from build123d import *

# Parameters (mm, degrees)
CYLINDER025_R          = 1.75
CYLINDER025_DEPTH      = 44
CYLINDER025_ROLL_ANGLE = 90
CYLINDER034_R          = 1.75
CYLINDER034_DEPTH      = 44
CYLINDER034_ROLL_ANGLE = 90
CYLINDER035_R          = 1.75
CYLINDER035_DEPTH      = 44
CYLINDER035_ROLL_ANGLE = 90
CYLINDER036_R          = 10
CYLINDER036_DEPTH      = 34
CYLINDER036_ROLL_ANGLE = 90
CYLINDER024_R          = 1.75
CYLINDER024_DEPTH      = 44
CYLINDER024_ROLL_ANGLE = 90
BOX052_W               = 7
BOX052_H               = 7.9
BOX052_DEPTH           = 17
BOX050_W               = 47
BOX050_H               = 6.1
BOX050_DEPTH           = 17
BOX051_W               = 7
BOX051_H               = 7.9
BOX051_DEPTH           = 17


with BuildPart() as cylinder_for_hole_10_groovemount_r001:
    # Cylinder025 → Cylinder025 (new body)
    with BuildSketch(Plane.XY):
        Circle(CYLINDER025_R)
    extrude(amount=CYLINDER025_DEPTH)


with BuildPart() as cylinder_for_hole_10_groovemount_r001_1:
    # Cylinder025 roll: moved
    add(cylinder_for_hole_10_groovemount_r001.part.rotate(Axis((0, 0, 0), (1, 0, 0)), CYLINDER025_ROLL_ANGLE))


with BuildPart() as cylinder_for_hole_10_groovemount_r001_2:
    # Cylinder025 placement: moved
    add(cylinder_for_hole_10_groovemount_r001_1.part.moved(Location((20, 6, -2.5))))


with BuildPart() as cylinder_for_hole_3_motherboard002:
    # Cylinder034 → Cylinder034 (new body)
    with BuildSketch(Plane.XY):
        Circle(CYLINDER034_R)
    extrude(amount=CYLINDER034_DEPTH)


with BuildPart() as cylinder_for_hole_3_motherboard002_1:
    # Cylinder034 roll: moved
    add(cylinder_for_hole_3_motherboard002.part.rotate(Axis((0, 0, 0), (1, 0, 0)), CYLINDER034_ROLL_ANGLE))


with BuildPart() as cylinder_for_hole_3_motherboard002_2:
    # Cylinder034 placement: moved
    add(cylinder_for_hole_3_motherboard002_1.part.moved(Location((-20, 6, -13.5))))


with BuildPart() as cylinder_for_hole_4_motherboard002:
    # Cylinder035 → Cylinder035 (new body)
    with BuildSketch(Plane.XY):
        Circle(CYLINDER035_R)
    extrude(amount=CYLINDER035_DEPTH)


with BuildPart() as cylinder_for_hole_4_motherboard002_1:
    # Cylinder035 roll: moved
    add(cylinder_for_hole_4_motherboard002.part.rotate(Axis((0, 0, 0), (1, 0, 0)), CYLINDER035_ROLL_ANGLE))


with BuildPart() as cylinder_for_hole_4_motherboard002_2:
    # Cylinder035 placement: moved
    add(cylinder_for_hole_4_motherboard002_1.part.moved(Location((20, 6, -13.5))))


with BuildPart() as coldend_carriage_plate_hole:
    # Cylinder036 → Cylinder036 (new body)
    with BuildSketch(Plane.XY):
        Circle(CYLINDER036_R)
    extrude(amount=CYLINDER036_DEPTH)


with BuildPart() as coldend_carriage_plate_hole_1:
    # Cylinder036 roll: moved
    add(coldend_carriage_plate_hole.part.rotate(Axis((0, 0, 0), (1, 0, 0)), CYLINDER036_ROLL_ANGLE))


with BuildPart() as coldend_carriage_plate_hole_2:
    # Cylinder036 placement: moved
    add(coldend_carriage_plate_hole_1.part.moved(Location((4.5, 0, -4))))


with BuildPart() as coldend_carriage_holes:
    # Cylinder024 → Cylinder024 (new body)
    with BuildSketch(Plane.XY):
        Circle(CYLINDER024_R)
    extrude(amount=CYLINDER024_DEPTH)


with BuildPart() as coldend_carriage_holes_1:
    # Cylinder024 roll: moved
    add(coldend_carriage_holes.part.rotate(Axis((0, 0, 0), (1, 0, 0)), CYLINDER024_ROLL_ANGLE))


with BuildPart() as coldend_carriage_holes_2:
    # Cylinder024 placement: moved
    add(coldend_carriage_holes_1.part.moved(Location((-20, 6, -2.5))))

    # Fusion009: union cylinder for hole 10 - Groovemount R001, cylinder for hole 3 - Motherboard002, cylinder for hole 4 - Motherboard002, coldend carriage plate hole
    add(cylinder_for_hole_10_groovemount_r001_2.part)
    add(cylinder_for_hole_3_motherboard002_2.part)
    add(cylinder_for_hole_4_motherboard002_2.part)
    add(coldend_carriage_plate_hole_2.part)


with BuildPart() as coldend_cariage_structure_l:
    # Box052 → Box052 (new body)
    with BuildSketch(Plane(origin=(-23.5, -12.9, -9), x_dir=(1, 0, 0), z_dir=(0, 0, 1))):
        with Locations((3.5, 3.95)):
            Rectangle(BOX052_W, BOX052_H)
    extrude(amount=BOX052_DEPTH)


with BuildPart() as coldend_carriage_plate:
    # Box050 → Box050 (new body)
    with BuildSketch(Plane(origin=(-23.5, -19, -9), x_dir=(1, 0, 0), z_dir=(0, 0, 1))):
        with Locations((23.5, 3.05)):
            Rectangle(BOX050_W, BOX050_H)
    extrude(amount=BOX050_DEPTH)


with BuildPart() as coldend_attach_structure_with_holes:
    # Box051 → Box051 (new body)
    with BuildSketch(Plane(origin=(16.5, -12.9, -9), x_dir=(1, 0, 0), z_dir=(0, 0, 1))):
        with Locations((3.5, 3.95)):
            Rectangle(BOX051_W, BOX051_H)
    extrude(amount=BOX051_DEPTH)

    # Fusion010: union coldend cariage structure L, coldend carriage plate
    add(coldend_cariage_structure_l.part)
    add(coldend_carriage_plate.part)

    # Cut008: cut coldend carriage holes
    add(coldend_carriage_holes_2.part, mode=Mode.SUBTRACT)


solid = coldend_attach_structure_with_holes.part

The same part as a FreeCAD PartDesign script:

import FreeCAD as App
import Part
import Sketcher
from FreeCAD import Vector
Q = App.Units.Quantity

doc = App.newDocument("Part")
params = doc.addObject("Spreadsheet::Sheet", "Params")
for row, (alias, value) in enumerate([
    ("sketch1_diameter", "3.5 mm"),
    ("pad1_length", "44 mm"),
    ("sketch2_diameter", "3.5 mm"),
    ("pad2_length", "44 mm"),
    ("sketch3_diameter", "3.5 mm"),
    ("pad3_length", "44 mm"),
    ("sketch4_diameter", "20 mm"),
    ("pad4_length", "34 mm"),
    ("sketch5_diameter", "3.5 mm"),
    ("pad5_length", "44 mm"),
    ("sketch6_width", "7 mm"),
    ("sketch6_height", "7.9 mm"),
    ("pad6_length", "17 mm"),
    ("sketch7_width", "47 mm"),
    ("sketch7_height", "6.1 mm"),
    ("pad7_length", "17 mm"),
    ("sketch8_width", "7 mm"),
    ("sketch8_height", "7.9 mm"),
    ("pad8_length", "17 mm"),
], start=1):
    params.set(f"A{row}", alias)
    params.set(f"B{row}", "=" + value)
    params.setAlias(f"B{row}", alias)

body = doc.addObject("PartDesign::Body", "Body")

# Sketch on XY plane
sketch1 = body.newObject("Sketcher::SketchObject", "Sketch")
sketch1.AttachmentSupport = (doc.getObject("XY_Plane"), [""])
sketch1.MapMode = "FlatFace"
sketch1.addGeometry(Part.Circle(Vector(0, 0, 0), Vector(0, 0, 1), 1.8), False)
sketch1.addConstraint(Sketcher.Constraint("Coincident", 0, 3, -1, 1))
sketch1.addConstraint(Sketcher.Constraint("Diameter", 0, Q("3.5 mm")))
sketch1.setExpression("Constraints[1]", "Params.sketch1_diameter")
pad1 = body.newObject("PartDesign::Pad", "Pad")
pad1.Profile = sketch1
pad1.setExpression("Length", "Params.pad1_length")
body2 = doc.addObject("PartDesign::Body", "Body001")
doc.recompute()

body.Placement = App.Placement(Vector(0, 0, 0), App.Rotation(Vector(1, 0, 0), 90))
boolean = body2.newObject("PartDesign::Boolean", "Boolean")
boolean.Type = "Fuse"
boolean.addObjects([body])
body3 = doc.addObject("PartDesign::Body", "Body002")
doc.recompute()

body2.Placement = App.Placement(Vector(20, 6, -2.5), App.Rotation(Vector(0, 0, 1), 0))
boolean2 = body3.newObject("PartDesign::Boolean", "Boolean001")
boolean2.Type = "Fuse"
boolean2.addObjects([body2])
body4 = doc.addObject("PartDesign::Body", "Body003")

# Sketch on XY plane
sketch2 = body4.newObject("Sketcher::SketchObject", "Sketch001")
sketch2.AttachmentSupport = (doc.getObject("XY_Plane003"), [""])
sketch2.MapMode = "FlatFace"
sketch2.addGeometry(Part.Circle(Vector(0, 0, 0), Vector(0, 0, 1), 1.8), False)
sketch2.addConstraint(Sketcher.Constraint("Coincident", 0, 3, -1, 1))
sketch2.addConstraint(Sketcher.Constraint("Diameter", 0, Q("3.5 mm")))
sketch2.setExpression("Constraints[1]", "Params.sketch2_diameter")
pad2 = body4.newObject("PartDesign::Pad", "Pad001")
pad2.Profile = sketch2
pad2.setExpression("Length", "Params.pad2_length")
body5 = doc.addObject("PartDesign::Body", "Body004")
doc.recompute()

body4.Placement = App.Placement(Vector(0, 0, 0), App.Rotation(Vector(1, 0, 0), 90))
boolean3 = body5.newObject("PartDesign::Boolean", "Boolean002")
boolean3.Type = "Fuse"
boolean3.addObjects([body4])
body6 = doc.addObject("PartDesign::Body", "Body005")
doc.recompute()

body5.Placement = App.Placement(Vector(-20, 6, -13.5), App.Rotation(Vector(0, 0, 1), 0))
boolean4 = body6.newObject("PartDesign::Boolean", "Boolean003")
boolean4.Type = "Fuse"
boolean4.addObjects([body5])
body7 = doc.addObject("PartDesign::Body", "Body006")

# Sketch on XY plane
sketch3 = body7.newObject("Sketcher::SketchObject", "Sketch002")
sketch3.AttachmentSupport = (doc.getObject("XY_Plane006"), [""])
sketch3.MapMode = "FlatFace"
sketch3.addGeometry(Part.Circle(Vector(0, 0, 0), Vector(0, 0, 1), 1.8), False)
sketch3.addConstraint(Sketcher.Constraint("Coincident", 0, 3, -1, 1))
sketch3.addConstraint(Sketcher.Constraint("Diameter", 0, Q("3.5 mm")))
sketch3.setExpression("Constraints[1]", "Params.sketch3_diameter")
pad3 = body7.newObject("PartDesign::Pad", "Pad002")
pad3.Profile = sketch3
pad3.setExpression("Length", "Params.pad3_length")
body8 = doc.addObject("PartDesign::Body", "Body007")
doc.recompute()

body7.Placement = App.Placement(Vector(0, 0, 0), App.Rotation(Vector(1, 0, 0), 90))
boolean5 = body8.newObject("PartDesign::Boolean", "Boolean004")
boolean5.Type = "Fuse"
boolean5.addObjects([body7])
body9 = doc.addObject("PartDesign::Body", "Body008")
doc.recompute()

body8.Placement = App.Placement(Vector(20, 6, -13.5), App.Rotation(Vector(0, 0, 1), 0))
boolean6 = body9.newObject("PartDesign::Boolean", "Boolean005")
boolean6.Type = "Fuse"
boolean6.addObjects([body8])
body10 = doc.addObject("PartDesign::Body", "Body009")

# Sketch on XY plane
sketch4 = body10.newObject("Sketcher::SketchObject", "Sketch003")
sketch4.AttachmentSupport = (doc.getObject("XY_Plane009"), [""])
sketch4.MapMode = "FlatFace"
sketch4.addGeometry(Part.Circle(Vector(0, 0, 0), Vector(0, 0, 1), 10), False)
sketch4.addConstraint(Sketcher.Constraint("Coincident", 0, 3, -1, 1))
sketch4.addConstraint(Sketcher.Constraint("Diameter", 0, Q("20 mm")))
sketch4.setExpression("Constraints[1]", "Params.sketch4_diameter")
pad4 = body10.newObject("PartDesign::Pad", "Pad003")
pad4.Profile = sketch4
pad4.setExpression("Length", "Params.pad4_length")
body11 = doc.addObject("PartDesign::Body", "Body010")
doc.recompute()

body10.Placement = App.Placement(Vector(0, 0, 0), App.Rotation(Vector(1, 0, 0), 90))
boolean7 = body11.newObject("PartDesign::Boolean", "Boolean006")
boolean7.Type = "Fuse"
boolean7.addObjects([body10])
body12 = doc.addObject("PartDesign::Body", "Body011")
doc.recompute()

body11.Placement = App.Placement(Vector(4.5, 0, -4), App.Rotation(Vector(0, 0, 1), 0))
boolean8 = body12.newObject("PartDesign::Boolean", "Boolean007")
boolean8.Type = "Fuse"
boolean8.addObjects([body11])
body13 = doc.addObject("PartDesign::Body", "Body012")

# Sketch on XY plane
sketch5 = body13.newObject("Sketcher::SketchObject", "Sketch004")
sketch5.AttachmentSupport = (doc.getObject("XY_Plane012"), [""])
sketch5.MapMode = "FlatFace"
sketch5.addGeometry(Part.Circle(Vector(0, 0, 0), Vector(0, 0, 1), 1.8), False)
sketch5.addConstraint(Sketcher.Constraint("Coincident", 0, 3, -1, 1))
sketch5.addConstraint(Sketcher.Constraint("Diameter", 0, Q("3.5 mm")))
sketch5.setExpression("Constraints[1]", "Params.sketch5_diameter")
pad5 = body13.newObject("PartDesign::Pad", "Pad004")
pad5.Profile = sketch5
pad5.setExpression("Length", "Params.pad5_length")
body14 = doc.addObject("PartDesign::Body", "Body013")
doc.recompute()

body13.Placement = App.Placement(Vector(0, 0, 0), App.Rotation(Vector(1, 0, 0), 90))
boolean9 = body14.newObject("PartDesign::Boolean", "Boolean008")
boolean9.Type = "Fuse"
boolean9.addObjects([body13])
body15 = doc.addObject("PartDesign::Body", "Body014")
body15.AllowCompound = True
doc.recompute()

body14.Placement = App.Placement(Vector(-20, 6, -2.5), App.Rotation(Vector(0, 0, 1), 0))
boolean10 = body15.newObject("PartDesign::Boolean", "Boolean009")
boolean10.Type = "Fuse"
boolean10.addObjects([body14])
doc.recompute()

boolean11 = body15.newObject("PartDesign::Boolean", "Boolean010")
boolean11.Type = "Fuse"
boolean11.addObjects([body3])
doc.recompute()

boolean12 = body15.newObject("PartDesign::Boolean", "Boolean011")
boolean12.Type = "Fuse"
boolean12.addObjects([body6])
doc.recompute()

boolean13 = body15.newObject("PartDesign::Boolean", "Boolean012")
boolean13.Type = "Fuse"
boolean13.addObjects([body9])
doc.recompute()

boolean14 = body15.newObject("PartDesign::Boolean", "Boolean013")
boolean14.Type = "Fuse"
boolean14.addObjects([body12])
body16 = doc.addObject("PartDesign::Body", "Body015")

# Sketch on XY plane
sketch6 = body16.newObject("Sketcher::SketchObject", "Sketch005")
sketch6.AttachmentSupport = (doc.getObject("XY_Plane015"), [""])
sketch6.MapMode = "FlatFace"
sketch6.AttachmentOffset = App.Placement(Vector(0, 0, -9), App.Rotation())
sketch6.addGeometry(Part.LineSegment(Vector(-24, -5, 0), Vector(-24, -13, 0)), False)
sketch6.addGeometry(Part.LineSegment(Vector(-24, -13, 0), Vector(-16, -13, 0)), False)
sketch6.addGeometry(Part.LineSegment(Vector(-16, -13, 0), Vector(-16, -5, 0)), False)
sketch6.addGeometry(Part.LineSegment(Vector(-16, -5, 0), Vector(-24, -5, 0)), False)
sketch6.addConstraint(Sketcher.Constraint("Coincident", 0, 2, 1, 1))
sketch6.addConstraint(Sketcher.Constraint("Coincident", 1, 2, 2, 1))
sketch6.addConstraint(Sketcher.Constraint("Coincident", 2, 2, 3, 1))
sketch6.addConstraint(Sketcher.Constraint("Coincident", 3, 2, 0, 1))
sketch6.addConstraint(Sketcher.Constraint("Vertical", 0))
sketch6.addConstraint(Sketcher.Constraint("Horizontal", 1))
sketch6.addConstraint(Sketcher.Constraint("Vertical", 2))
sketch6.addConstraint(Sketcher.Constraint("Horizontal", 3))
sketch6.addConstraint(Sketcher.Constraint("DistanceX", 1, 1, 1, 2, Q("7 mm")))
sketch6.addConstraint(Sketcher.Constraint("DistanceY", 0, 2, 0, 1, Q("7.9 mm")))
sketch6.addConstraint(Sketcher.Constraint("DistanceY", 2, 2, -1, 1, Q("5 mm")))
sketch6.addConstraint(Sketcher.Constraint("DistanceX", 0, 2, -1, 1, Q("23.5 mm")))
sketch6.setExpression("Constraints[8]", "Params.sketch6_width")
sketch6.setExpression("Constraints[9]", "Params.sketch6_height")
pad6 = body16.newObject("PartDesign::Pad", "Pad005")
pad6.Profile = sketch6
pad6.setExpression("Length", "Params.pad6_length")
body17 = doc.addObject("PartDesign::Body", "Body016")

# Sketch on XY plane
sketch7 = body17.newObject("Sketcher::SketchObject", "Sketch006")
sketch7.AttachmentSupport = (doc.getObject("XY_Plane016"), [""])
sketch7.MapMode = "FlatFace"
sketch7.AttachmentOffset = App.Placement(Vector(0, 0, -9), App.Rotation())
sketch7.addGeometry(Part.LineSegment(Vector(-24, -13, 0), Vector(-24, -19, 0)), False)
sketch7.addGeometry(Part.LineSegment(Vector(-24, -19, 0), Vector(24, -19, 0)), False)
sketch7.addGeometry(Part.LineSegment(Vector(24, -19, 0), Vector(24, -13, 0)), False)
sketch7.addGeometry(Part.LineSegment(Vector(24, -13, 0), Vector(-24, -13, 0)), False)
sketch7.addConstraint(Sketcher.Constraint("Coincident", 0, 2, 1, 1))
sketch7.addConstraint(Sketcher.Constraint("Coincident", 1, 2, 2, 1))
sketch7.addConstraint(Sketcher.Constraint("Coincident", 2, 2, 3, 1))
sketch7.addConstraint(Sketcher.Constraint("Coincident", 3, 2, 0, 1))
sketch7.addConstraint(Sketcher.Constraint("Vertical", 0))
sketch7.addConstraint(Sketcher.Constraint("Horizontal", 1))
sketch7.addConstraint(Sketcher.Constraint("Vertical", 2))
sketch7.addConstraint(Sketcher.Constraint("Horizontal", 3))
sketch7.addConstraint(Sketcher.Constraint("DistanceX", 1, 1, 1, 2, Q("47 mm")))
sketch7.addConstraint(Sketcher.Constraint("DistanceY", 0, 2, 0, 1, Q("6.1 mm")))
sketch7.addConstraint(Sketcher.Constraint("DistanceY", 0, 2, -1, 1, Q("19 mm")))
sketch7.addConstraint(Sketcher.Constraint("DistanceX", 0, 2, -1, 1, Q("23.5 mm")))
sketch7.setExpression("Constraints[8]", "Params.sketch7_width")
sketch7.setExpression("Constraints[9]", "Params.sketch7_height")
pad7 = body17.newObject("PartDesign::Pad", "Pad006")
pad7.Profile = sketch7
pad7.setExpression("Length", "Params.pad7_length")
body18 = doc.addObject("PartDesign::Body", "Body017")
body18.AllowCompound = True

# Sketch on XY plane
sketch8 = body18.newObject("Sketcher::SketchObject", "Sketch007")
sketch8.AttachmentSupport = (doc.getObject("XY_Plane017"), [""])
sketch8.MapMode = "FlatFace"
sketch8.AttachmentOffset = App.Placement(Vector(0, 0, -9), App.Rotation())
sketch8.addGeometry(Part.LineSegment(Vector(16, -5, 0), Vector(16, -13, 0)), False)
sketch8.addGeometry(Part.LineSegment(Vector(16, -13, 0), Vector(24, -13, 0)), False)
sketch8.addGeometry(Part.LineSegment(Vector(24, -13, 0), Vector(24, -5, 0)), False)
sketch8.addGeometry(Part.LineSegment(Vector(24, -5, 0), Vector(16, -5, 0)), False)
sketch8.addConstraint(Sketcher.Constraint("Coincident", 0, 2, 1, 1))
sketch8.addConstraint(Sketcher.Constraint("Coincident", 1, 2, 2, 1))
sketch8.addConstraint(Sketcher.Constraint("Coincident", 2, 2, 3, 1))
sketch8.addConstraint(Sketcher.Constraint("Coincident", 3, 2, 0, 1))
sketch8.addConstraint(Sketcher.Constraint("Vertical", 0))
sketch8.addConstraint(Sketcher.Constraint("Horizontal", 1))
sketch8.addConstraint(Sketcher.Constraint("Vertical", 2))
sketch8.addConstraint(Sketcher.Constraint("Horizontal", 3))
sketch8.addConstraint(Sketcher.Constraint("DistanceX", 1, 1, 1, 2, Q("7 mm")))
sketch8.addConstraint(Sketcher.Constraint("DistanceY", 0, 2, 0, 1, Q("7.9 mm")))
sketch8.addConstraint(Sketcher.Constraint("DistanceY", 2, 2, -1, 1, Q("5 mm")))
sketch8.addConstraint(Sketcher.Constraint("DistanceX", -1, 1, 0, 2, Q("16.5 mm")))
sketch8.setExpression("Constraints[8]", "Params.sketch8_width")
sketch8.setExpression("Constraints[9]", "Params.sketch8_height")
pad8 = body18.newObject("PartDesign::Pad", "Pad007")
pad8.Profile = sketch8
pad8.setExpression("Length", "Params.pad8_length")
doc.recompute()

boolean15 = body18.newObject("PartDesign::Boolean", "Boolean014")
boolean15.Type = "Fuse"
boolean15.addObjects([body16])
doc.recompute()

boolean16 = body18.newObject("PartDesign::Boolean", "Boolean015")
boolean16.Type = "Fuse"
boolean16.addObjects([body17])
doc.recompute()

boolean17 = body18.newObject("PartDesign::Boolean", "Boolean016")
boolean17.Type = "Cut"
boolean17.addObjects([body15])

doc.recompute()
